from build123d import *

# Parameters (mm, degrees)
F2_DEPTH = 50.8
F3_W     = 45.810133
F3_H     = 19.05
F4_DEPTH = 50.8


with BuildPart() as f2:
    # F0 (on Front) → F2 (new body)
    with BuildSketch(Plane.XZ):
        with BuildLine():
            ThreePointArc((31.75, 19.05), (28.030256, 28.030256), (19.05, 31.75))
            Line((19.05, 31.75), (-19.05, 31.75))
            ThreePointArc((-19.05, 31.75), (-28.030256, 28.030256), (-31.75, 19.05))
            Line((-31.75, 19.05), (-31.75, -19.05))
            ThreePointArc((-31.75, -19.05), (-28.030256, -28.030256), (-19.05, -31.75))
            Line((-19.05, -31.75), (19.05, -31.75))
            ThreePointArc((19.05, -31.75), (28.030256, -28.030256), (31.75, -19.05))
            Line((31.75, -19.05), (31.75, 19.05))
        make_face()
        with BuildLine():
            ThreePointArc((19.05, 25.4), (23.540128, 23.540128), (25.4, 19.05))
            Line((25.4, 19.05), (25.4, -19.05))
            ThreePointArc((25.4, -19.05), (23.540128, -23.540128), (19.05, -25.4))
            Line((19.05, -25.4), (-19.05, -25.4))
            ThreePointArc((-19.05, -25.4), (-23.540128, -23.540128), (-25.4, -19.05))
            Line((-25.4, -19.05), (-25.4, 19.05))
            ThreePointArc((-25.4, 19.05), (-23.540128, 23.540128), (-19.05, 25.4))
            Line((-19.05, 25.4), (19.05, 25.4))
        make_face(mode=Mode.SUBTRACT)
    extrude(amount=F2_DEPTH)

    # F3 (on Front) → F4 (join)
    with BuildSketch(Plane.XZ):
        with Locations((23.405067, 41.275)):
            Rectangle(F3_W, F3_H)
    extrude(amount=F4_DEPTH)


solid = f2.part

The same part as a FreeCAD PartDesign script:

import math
import FreeCAD as App
import Part
import Sketcher

V = App.Vector
Q = App.Units.Quantity


def add_polygon(sketch, points):
    """Adds a closed chain of lines whose ends are joined by coincident constraints."""
    first, n = sketch.GeometryCount, len(points)
    for a, b in zip(points, points[1:] + points[:1]):
        sketch.addGeometry(Part.LineSegment(App.Vector(*a, 0), App.Vector(*b, 0)), False)
    for i in range(n):
        sketch.addConstraint(Sketcher.Constraint("Coincident", first + i, 2, first + (i + 1) % n, 1))

doc = App.newDocument("Part")
body = doc.addObject("PartDesign::Body", "Body")

sketch1 = body.newObject("Sketcher::SketchObject", "Sketch")
sketch1.AttachmentSupport = (doc.getObject("XZ_Plane"), [""])
sketch1.MapMode = "FlatFace"
sketch1.addGeometry([
    Part.ArcOfCircle(Part.Circle(V(19, 19, 0), V(0, 0, 1), 13), math.radians(0), math.radians(90)),
    Part.LineSegment(V(19, 32, 0), V(-19, 32, 0)),
    Part.ArcOfCircle(Part.Circle(V(-19, 19, 0), V(0, 0, 1), 13), math.radians(90), math.radians(180)),
    Part.LineSegment(V(-32, 19, 0), V(-32, -19, 0)),
    Part.ArcOfCircle(Part.Circle(V(-19, -19, 0), V(0, 0, 1), 13), math.radians(-180), math.radians(-90)),
    Part.LineSegment(V(-19, -32, 0), V(19, -32, 0)),
    Part.ArcOfCircle(Part.Circle(V(19, -19, 0), V(0, 0, 1), 13), math.radians(-90), math.radians(0)),
    Part.LineSegment(V(32, -19, 0), V(32, 19, 0)),
    Part.LineSegment(V(-19, 25, 0), V(19, 25, 0)),
    Part.ArcOfCircle(Part.Circle(V(19, 19, 0), V(0, 0, 1), 6), math.radians(0), math.radians(90)),
    Part.LineSegment(V(25, 19, 0), V(25, -19, 0)),
    Part.ArcOfCircle(Part.Circle(V(19, -19, 0), V(0, 0, 1), 6), math.radians(-90), math.radians(0)),
    Part.LineSegment(V(19, -25, 0), V(-19, -25, 0)),
    Part.ArcOfCircle(Part.Circle(V(-19, -19, 0), V(0, 0, 1), 6), math.radians(-180), math.radians(-90)),
    Part.LineSegment(V(-25, -19, 0), V(-25, 19, 0)),
    Part.ArcOfCircle(Part.Circle(V(-19, 19, 0), V(0, 0, 1), 6), math.radians(90), math.radians(180)),
], False)
sketch1.addConstraint([
    Sketcher.Constraint("Tangent", 0, 2, 1, 1),
    Sketcher.Constraint("Tangent", 1, 2, 2, 1),
    Sketcher.Constraint("Tangent", 2, 2, 3, 1),
    Sketcher.Constraint("Tangent", 3, 2, 4, 1),
    Sketcher.Constraint("Tangent", 4, 2, 5, 1),
    Sketcher.Constraint("Tangent", 5, 2, 6, 1),
    Sketcher.Constraint("Tangent", 6, 2, 7, 1),
    Sketcher.Constraint("Tangent", 7, 2, 0, 1),
    Sketcher.Constraint("Tangent", 8, 2, 9, 2),
    Sketcher.Constraint("Tangent", 9, 1, 10, 1),
    Sketcher.Constraint("Tangent", 10, 2, 11, 2),
    Sketcher.Constraint("Tangent", 11, 1, 12, 1),
    Sketcher.Constraint("Tangent", 12, 2, 13, 2),
    Sketcher.Constraint("Tangent", 13, 1, 14, 1),
    Sketcher.Constraint("Tangent", 14, 2, 15, 2),
    Sketcher.Constraint("Tangent", 15, 1, 8, 1),
    Sketcher.Constraint("Horizontal", 1),
    Sketcher.Constraint("Vertical", 3),
    Sketcher.Constraint("Horizontal", 5),
    Sketcher.Constraint("Vertical", 7),
    Sketcher.Constraint("Horizontal", 8),
    Sketcher.Constraint("Vertical", 10),
    Sketcher.Constraint("Horizontal", 12),
    Sketcher.Constraint("Vertical", 14),
    Sketcher.Constraint("Coincident", 9, 3, 0, 3),
    Sketcher.Constraint("Coincident", 11, 3, 6, 3),
    Sketcher.Constraint("Coincident", 13, 3, 4, 3),
    Sketcher.Constraint("Equal", 0, 2),
    Sketcher.Constraint("Equal", 2, 4),
    Sketcher.Constraint("Equal", 4, 6),
    Sketcher.Constraint("Equal", 13, 15),
    Sketcher.Constraint("Symmetric", 0, 3, 4, 3, -1, 1),
    Sketcher.Constraint("Equal", 12, 3),
    Sketcher.Constraint("Radius", 0, Q("0.5 in")),
    Sketcher.Constraint("Radius", 9, Q("0.25 in")),
    Sketcher.Constraint("DistanceX", 1, 2, 1, 1, Q("1.5 in")),
])
pad1 = body.newObject("PartDesign::Pad", "Pad")
pad1.Profile = sketch1
pad1.Length = Q("2 in")

sketch2 = body.newObject("Sketcher::SketchObject", "Sketch001")
sketch2.AttachmentSupport = (doc.getObject("XZ_Plane"), [""])
sketch2.MapMode = "FlatFace"
add_polygon(sketch2, [(1, 51), (1, 32), (46, 32), (46, 51)])
sketch2.addConstraint([
    Sketcher.Constraint("Vertical", 0),
    Sketcher.Constraint("Horizontal", 1),
    Sketcher.Constraint("Vertical", 2),
    Sketcher.Constraint("Horizontal", 3),
    Sketcher.Constraint("DistanceY", -1, 1, 2, 2, Q("2 in")),
    Sketcher.Constraint("DistanceY", 0, 2, 0, 1, Q("0.75 in")),
    Sketcher.Constraint("DistanceX", -1, 1, 0, 2, Q("0.5 mm")),
    Sketcher.Constraint("DistanceX", 1, 1, 1, 2, Q("45.810133 mm")),
])
pad2 = body.newObject("PartDesign::Pad", "Pad001")
pad2.Profile = sketch2
pad2.Length = Q("2 in")

doc.recompute()
